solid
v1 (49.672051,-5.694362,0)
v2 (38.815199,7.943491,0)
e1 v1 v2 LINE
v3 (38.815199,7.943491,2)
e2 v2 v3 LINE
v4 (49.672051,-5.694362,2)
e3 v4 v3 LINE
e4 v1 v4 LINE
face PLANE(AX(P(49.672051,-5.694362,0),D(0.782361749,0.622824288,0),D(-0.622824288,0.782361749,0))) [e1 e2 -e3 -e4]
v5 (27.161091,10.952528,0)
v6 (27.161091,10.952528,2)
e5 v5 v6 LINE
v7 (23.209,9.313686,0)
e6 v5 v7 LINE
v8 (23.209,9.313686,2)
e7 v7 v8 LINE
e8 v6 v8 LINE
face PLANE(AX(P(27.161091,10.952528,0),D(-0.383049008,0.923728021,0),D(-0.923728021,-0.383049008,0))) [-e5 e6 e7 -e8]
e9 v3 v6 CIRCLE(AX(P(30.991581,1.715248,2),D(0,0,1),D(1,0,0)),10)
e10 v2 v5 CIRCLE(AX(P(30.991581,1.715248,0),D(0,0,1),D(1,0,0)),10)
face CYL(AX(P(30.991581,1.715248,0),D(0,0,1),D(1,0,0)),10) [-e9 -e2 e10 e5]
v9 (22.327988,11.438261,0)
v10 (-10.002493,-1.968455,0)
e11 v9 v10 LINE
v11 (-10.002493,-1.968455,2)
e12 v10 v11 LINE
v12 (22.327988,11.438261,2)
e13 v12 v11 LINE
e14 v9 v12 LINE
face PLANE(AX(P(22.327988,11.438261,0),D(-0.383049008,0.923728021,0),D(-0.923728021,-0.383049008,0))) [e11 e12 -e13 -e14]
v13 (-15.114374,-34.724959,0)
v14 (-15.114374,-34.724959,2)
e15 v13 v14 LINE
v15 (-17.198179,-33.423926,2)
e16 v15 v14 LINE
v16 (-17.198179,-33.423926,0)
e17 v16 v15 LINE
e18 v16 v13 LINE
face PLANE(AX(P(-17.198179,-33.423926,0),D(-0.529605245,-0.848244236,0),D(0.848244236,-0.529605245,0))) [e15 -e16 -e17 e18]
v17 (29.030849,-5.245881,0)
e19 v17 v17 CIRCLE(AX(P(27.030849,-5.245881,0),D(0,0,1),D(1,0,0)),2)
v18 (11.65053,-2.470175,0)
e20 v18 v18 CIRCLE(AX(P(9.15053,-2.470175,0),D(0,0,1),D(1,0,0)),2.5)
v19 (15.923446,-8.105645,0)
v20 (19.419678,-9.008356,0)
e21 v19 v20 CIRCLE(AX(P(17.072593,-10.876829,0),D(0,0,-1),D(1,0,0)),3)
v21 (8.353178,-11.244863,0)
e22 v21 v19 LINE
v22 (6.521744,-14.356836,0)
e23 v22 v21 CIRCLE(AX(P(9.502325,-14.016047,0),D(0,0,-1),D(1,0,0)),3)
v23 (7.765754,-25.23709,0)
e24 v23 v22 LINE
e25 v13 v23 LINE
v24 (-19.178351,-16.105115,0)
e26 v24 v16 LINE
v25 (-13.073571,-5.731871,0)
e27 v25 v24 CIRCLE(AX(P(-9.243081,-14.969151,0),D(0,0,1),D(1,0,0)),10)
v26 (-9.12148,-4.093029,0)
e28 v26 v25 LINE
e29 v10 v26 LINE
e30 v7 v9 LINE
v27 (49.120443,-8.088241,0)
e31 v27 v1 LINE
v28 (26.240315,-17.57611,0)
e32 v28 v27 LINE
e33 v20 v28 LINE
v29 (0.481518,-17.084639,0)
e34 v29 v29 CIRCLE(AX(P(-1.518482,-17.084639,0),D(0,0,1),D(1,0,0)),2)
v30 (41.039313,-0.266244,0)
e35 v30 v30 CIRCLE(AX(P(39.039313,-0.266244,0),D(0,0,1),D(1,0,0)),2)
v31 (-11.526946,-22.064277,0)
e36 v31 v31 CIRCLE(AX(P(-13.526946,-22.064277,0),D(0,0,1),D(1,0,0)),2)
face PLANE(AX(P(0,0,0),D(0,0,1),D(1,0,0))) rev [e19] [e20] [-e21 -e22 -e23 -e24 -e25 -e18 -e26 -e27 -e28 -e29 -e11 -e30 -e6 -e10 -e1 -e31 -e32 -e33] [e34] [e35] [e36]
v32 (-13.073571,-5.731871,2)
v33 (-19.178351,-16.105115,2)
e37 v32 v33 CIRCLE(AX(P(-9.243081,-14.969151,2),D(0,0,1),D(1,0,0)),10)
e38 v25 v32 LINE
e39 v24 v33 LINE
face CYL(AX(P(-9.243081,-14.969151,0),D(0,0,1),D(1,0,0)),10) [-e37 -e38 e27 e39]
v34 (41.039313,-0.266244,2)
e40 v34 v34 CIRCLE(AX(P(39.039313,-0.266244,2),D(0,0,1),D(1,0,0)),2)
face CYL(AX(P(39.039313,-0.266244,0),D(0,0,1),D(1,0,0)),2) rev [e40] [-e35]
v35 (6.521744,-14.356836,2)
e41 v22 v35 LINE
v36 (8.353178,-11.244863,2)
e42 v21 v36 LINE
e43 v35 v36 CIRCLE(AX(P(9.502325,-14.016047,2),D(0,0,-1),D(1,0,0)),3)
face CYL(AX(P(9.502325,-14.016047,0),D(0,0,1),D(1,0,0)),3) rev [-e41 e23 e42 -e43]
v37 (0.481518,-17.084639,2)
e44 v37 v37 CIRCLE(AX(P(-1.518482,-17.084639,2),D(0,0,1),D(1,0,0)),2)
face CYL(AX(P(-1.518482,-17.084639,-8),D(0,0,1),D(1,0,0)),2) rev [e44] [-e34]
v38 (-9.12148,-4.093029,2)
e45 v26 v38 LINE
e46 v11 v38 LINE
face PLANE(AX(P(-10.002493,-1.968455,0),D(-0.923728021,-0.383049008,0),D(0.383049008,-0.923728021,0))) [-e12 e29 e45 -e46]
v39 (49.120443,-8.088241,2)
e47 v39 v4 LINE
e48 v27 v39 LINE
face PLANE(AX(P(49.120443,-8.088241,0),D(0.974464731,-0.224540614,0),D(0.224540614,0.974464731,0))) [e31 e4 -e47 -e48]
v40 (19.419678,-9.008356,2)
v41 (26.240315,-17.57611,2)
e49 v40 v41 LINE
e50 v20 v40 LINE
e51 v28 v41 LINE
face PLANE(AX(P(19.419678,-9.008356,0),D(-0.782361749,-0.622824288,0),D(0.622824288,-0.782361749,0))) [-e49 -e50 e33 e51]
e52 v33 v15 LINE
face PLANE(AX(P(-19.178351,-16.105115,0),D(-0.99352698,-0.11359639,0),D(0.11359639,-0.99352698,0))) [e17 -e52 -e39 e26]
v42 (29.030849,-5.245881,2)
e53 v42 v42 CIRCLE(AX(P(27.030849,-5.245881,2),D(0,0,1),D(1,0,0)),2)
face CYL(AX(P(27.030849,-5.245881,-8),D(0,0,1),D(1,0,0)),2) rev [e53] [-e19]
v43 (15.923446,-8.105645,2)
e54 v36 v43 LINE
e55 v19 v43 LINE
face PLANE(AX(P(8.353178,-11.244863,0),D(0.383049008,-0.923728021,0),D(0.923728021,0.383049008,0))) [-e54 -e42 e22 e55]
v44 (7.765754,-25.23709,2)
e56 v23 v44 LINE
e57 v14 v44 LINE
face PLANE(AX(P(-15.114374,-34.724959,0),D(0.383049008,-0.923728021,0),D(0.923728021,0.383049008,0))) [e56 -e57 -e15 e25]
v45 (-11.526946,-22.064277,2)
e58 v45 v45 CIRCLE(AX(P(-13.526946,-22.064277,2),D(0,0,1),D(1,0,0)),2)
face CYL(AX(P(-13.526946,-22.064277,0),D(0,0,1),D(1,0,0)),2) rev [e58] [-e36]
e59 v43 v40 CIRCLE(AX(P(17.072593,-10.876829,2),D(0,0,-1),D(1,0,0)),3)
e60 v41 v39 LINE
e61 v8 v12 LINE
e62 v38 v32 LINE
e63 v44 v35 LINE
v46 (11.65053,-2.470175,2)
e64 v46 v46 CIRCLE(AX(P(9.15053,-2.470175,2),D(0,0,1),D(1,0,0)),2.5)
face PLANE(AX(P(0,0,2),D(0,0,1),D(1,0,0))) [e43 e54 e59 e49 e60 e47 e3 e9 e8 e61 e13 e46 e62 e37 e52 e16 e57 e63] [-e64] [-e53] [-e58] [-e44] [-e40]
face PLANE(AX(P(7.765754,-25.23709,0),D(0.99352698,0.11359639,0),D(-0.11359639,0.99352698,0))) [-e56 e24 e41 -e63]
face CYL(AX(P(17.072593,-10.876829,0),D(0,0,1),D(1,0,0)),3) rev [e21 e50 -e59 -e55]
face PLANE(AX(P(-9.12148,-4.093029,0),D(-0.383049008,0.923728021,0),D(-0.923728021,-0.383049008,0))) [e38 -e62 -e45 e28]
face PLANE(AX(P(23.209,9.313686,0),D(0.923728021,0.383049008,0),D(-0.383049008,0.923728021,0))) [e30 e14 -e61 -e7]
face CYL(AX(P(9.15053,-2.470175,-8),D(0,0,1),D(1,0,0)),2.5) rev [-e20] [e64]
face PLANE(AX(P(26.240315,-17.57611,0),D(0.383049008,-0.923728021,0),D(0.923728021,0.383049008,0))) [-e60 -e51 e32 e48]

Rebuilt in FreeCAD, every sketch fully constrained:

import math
import FreeCAD as App
import Part
import Sketcher

V = App.Vector

doc = App.newDocument("Part")
body = doc.addObject("PartDesign::Body", "Body")

# Sketch on XY plane
sketch1 = body.newObject("Sketcher::SketchObject", "Sketch")
sketch1.AttachmentSupport = (doc.getObject("XY_Plane"), [""])
sketch1.MapMode = "FlatFace"
sketch1.addGeometry(Part.LineSegment(V(-89.05194, 56.315945, 0), V(-89.05194, -56.315945, 0)), False)
sketch1.addGeometry(Part.LineSegment(V(-89.05194, -56.315945, 0), V(89.05194, -56.315945, 0)), False)
sketch1.addGeometry(Part.LineSegment(V(89.05194, -56.315945, 0), V(89.05194, 56.315945, 0)), False)
sketch1.addGeometry(Part.LineSegment(V(89.05194, 56.315945, 0), V(-89.05194, 56.315945, 0)), False)
sketch1.addConstraint(Sketcher.Constraint("Coincident", 0, 2, 1, 1))
sketch1.addConstraint(Sketcher.Constraint("Coincident", 1, 2, 2, 1))
sketch1.addConstraint(Sketcher.Constraint("Coincident", 2, 2, 3, 1))
sketch1.addConstraint(Sketcher.Constraint("Coincident", 3, 2, 0, 1))
sketch1.addConstraint(Sketcher.Constraint("Vertical", 0))
sketch1.addConstraint(Sketcher.Constraint("Horizontal", 1))
sketch1.addConstraint(Sketcher.Constraint("Vertical", 2))
sketch1.addConstraint(Sketcher.Constraint("Horizontal", 3))
sketch1.addConstraint(Sketcher.Constraint("Symmetric", 0, 2, 2, 2, -1, 1))
sketch1.addConstraint(Sketcher.Constraint("DistanceX", 1, 1, 1, 2, 178.10388))
sketch1.addConstraint(Sketcher.Constraint("DistanceY", 0, 2, 0, 1, 112.63189))
pad1 = body.newObject("PartDesign::Pad", "Pad")
pad1.Profile = sketch1
pad1.Length = 2

# Sketch on XY plane
sketch2 = body.newObject("Sketcher::SketchObject", "Sketch001")
sketch2.AttachmentSupport = (doc.getObject("XY_Plane"), [""])
sketch2.MapMode = "FlatFace"
sketch2.AttachmentOffset = App.Placement(V(0, 0, 2), App.Rotation())
sketch2.addGeometry(Part.LineSegment(V(-111.126, 78.39, 0), V(-111.126, -78.39, 0)), False)
sketch2.addGeometry(Part.LineSegment(V(-111.126, -78.39, 0), V(111.126, -78.39, 0)), False)
sketch2.addGeometry(Part.LineSegment(V(111.126, -78.39, 0), V(111.126, 78.39, 0)), False)
sketch2.addGeometry(Part.LineSegment(V(111.126, 78.39, 0), V(-111.126, 78.39, 0)), False)
sketch2.addGeometry(Part.LineSegment(V(26.240315, -17.57611, 0), V(19.419678, -9.008356, 0)), False)
sketch2.addGeometry(Part.ArcOfCircle(Part.Circle(V(17.072593, -10.876829, 0), V(0, 0, 1), 3), math.radians(38.522674), math.radians(112.522674)), False)
sketch2.addGeometry(Part.LineSegment(V(15.923446, -8.105645, 0), V(8.353178, -11.244863, 0)), False)
sketch2.addGeometry(Part.ArcOfCircle(Part.Circle(V(9.502325, -14.016047, 0), V(0, 0, 1), 3), math.radians(112.522674), math.radians(186.522674)), False)
sketch2.addGeometry(Part.LineSegment(V(6.521744, -14.356836, 0), V(7.765754, -25.23709, 0)), False)
sketch2.addGeometry(Part.LineSegment(V(7.765754, -25.23709, 0), V(-15.114374, -34.724959, 0)), False)
sketch2.addGeometry(Part.LineSegment(V(-15.114374, -34.724959, 0), V(-17.198179, -33.423926, 0)), False)
sketch2.addGeometry(Part.LineSegment(V(-17.198179, -33.423926, 0), V(-19.178351, -16.105115, 0)), False)
sketch2.addGeometry(Part.ArcOfCircle(Part.Circle(V(-9.243081, -14.969151, 0), V(0, 0, 1), 10), math.radians(112.522674), math.radians(186.522674)), False)
sketch2.addGeometry(Part.LineSegment(V(-13.073571, -5.731871, 0), V(-9.12148, -4.093029, 0)), False)
sketch2.addGeometry(Part.LineSegment(V(-9.12148, -4.093029, 0), V(-10.002493, -1.968455, 0)), False)
sketch2.addGeometry(Part.LineSegment(V(-10.002493, -1.968455, 0), V(22.327988, 11.438261, 0)), False)
sketch2.addGeometry(Part.LineSegment(V(22.327988, 11.438261, 0), V(23.209, 9.313686, 0)), False)
sketch2.addGeometry(Part.LineSegment(V(23.209, 9.313686, 0), V(27.161091, 10.952528, 0)), False)
sketch2.addGeometry(Part.ArcOfCircle(Part.Circle(V(30.991581, 1.715248, 0), V(0, 0, 1), 10), math.radians(38.522674), math.radians(112.522674)), False)
sketch2.addGeometry(Part.LineSegment(V(38.815199, 7.943491, 0), V(49.672051, -5.694362, 0)), False)
sketch2.addGeometry(Part.LineSegment(V(49.672051, -5.694362, 0), V(49.120443, -8.088241, 0)), False)
sketch2.addGeometry(Part.LineSegment(V(49.120443, -8.088241, 0), V(26.240315, -17.57611, 0)), False)
sketch2.addConstraint(Sketcher.Constraint("Coincident", 0, 2, 1, 1))
sketch2.addConstraint(Sketcher.Constraint("Coincident", 1, 2, 2, 1))
sketch2.addConstraint(Sketcher.Constraint("Coincident", 2, 2, 3, 1))
sketch2.addConstraint(Sketcher.Constraint("Coincident", 3, 2, 0, 1))
sketch2.addConstraint(Sketcher.Constraint("Coincident", 4, 2, 5, 1))
sketch2.addConstraint(Sketcher.Constraint("Coincident", 5, 2, 6, 1))
sketch2.addConstraint(Sketcher.Constraint("Coincident", 6, 2, 7, 1))
sketch2.addConstraint(Sketcher.Constraint("Coincident", 7, 2, 8, 1))
sketch2.addConstraint(Sketcher.Constraint("Coincident", 8, 2, 9, 1))
sketch2.addConstraint(Sketcher.Constraint("Coincident", 9, 2, 10, 1))
sketch2.addConstraint(Sketcher.Constraint("Coincident", 10, 2, 11, 1))
sketch2.addConstraint(Sketcher.Constraint("Coincident", 11, 2, 12, 2))
sketch2.addConstraint(Sketcher.Constraint("Coincident", 12, 1, 13, 1))
sketch2.addConstraint(Sketcher.Constraint("Coincident", 13, 2, 14, 1))
sketch2.addConstraint(Sketcher.Constraint("Coincident", 14, 2, 15, 1))
sketch2.addConstraint(Sketcher.Constraint("Coincident", 15, 2, 16, 1))
sketch2.addConstraint(Sketcher.Constraint("Coincident", 16, 2, 17, 1))
sketch2.addConstraint(Sketcher.Constraint("Coincident", 17, 2, 18, 2))
sketch2.addConstraint(Sketcher.Constraint("Coincident", 18, 1, 19, 1))
sketch2.addConstraint(Sketcher.Constraint("Coincident", 19, 2, 20, 1))
sketch2.addConstraint(Sketcher.Constraint("Coincident", 20, 2, 21, 1))
sketch2.addConstraint(Sketcher.Constraint("Coincident", 21, 2, 4, 1))
sketch2.addConstraint(Sketcher.Constraint("Vertical", 0))
sketch2.addConstraint(Sketcher.Constraint("Horizontal", 1))
sketch2.addConstraint(Sketcher.Constraint("Vertical", 2))
sketch2.addConstraint(Sketcher.Constraint("Horizontal", 3))
sketch2.addConstraint(Sketcher.Constraint("Radius", 5, 3.0))
sketch2.addConstraint(Sketcher.Constraint("Radius", 7, 3.0))
sketch2.addConstraint(Sketcher.Constraint("Radius", 12, 10.0))
sketch2.addConstraint(Sketcher.Constraint("Radius", 18, 10.0))
sketch2.addConstraint(Sketcher.Constraint("Distance", 15, 35.0))
sketch2.addConstraint(Sketcher.Constraint("Distance", 14, 2.3))
sketch2.addConstraint(Sketcher.Constraint("Distance", 16, 2.3))
sketch2.addConstraint(Sketcher.Constraint("DistanceY", 0, 2, 0, 1, 156.78))
sketch2.addConstraint(Sketcher.Constraint("DistanceX", 1, 1, 1, 2, 222.252))
sketch2.addConstraint(Sketcher.Constraint("DistanceY", 0, 2, -1, 1, 78.39))
sketch2.addConstraint(Sketcher.Constraint("DistanceX", 0, 2, -1, 1, 111.126))
sketch2.addConstraint(Sketcher.Constraint("DistanceX", -1, 1, 16, 2, 23.209))
sketch2.addConstraint(Sketcher.Constraint("DistanceX", -1, 1, 18, 1, 38.815199))
sketch2.addConstraint(Sketcher.Constraint("DistanceY", 12, 3, 18, 3, 16.6844))
sketch2.addConstraint(Sketcher.Constraint("DistanceX", 6, 2, 4, 2, 11.0665))
sketch2.addConstraint(Sketcher.Constraint("DistanceX", 7, 2, 5, 2, 9.401702))
sketch2.addConstraint(Sketcher.Constraint("DistanceX", 9, 2, 7, 3, 24.616699))
sketch2.addConstraint(Sketcher.Constraint("DistanceX", 12, 3, 13, 2, 0.121601))
sketch2.addConstraint(Sketcher.Constraint("Distance", 4, 10.951141))
sketch2.addConstraint(Sketcher.Constraint("Distance", 8, 10.951141))
sketch2.addConstraint(Sketcher.Constraint("Distance", 10, 2.456609))
sketch2.addConstraint(Sketcher.Constraint("Distance", 20, 2.456609))
sketch2.addConstraint(Sketcher.Constraint("DistanceY", 5, 3, -1, 1, 10.876829))
sketch2.addConstraint(Sketcher.Constraint("DistanceX", 12, 3, -1, 1, 9.243081))
sketch2.addConstraint(Sketcher.Constraint("DistanceY", 12, 3, -1, 1, 14.969151))
sketch2.addConstraint(Sketcher.Constraint("DistanceX", -1, 1, 18, 3, 30.991581))
sketch2.addConstraint(Sketcher.Constraint("DistanceX", -1, 1, 4, 2, 19.419678))
sketch2.addConstraint(Sketcher.Constraint("DistanceY", 8, 2, -1, 1, 25.23709))
sketch2.addConstraint(Sketcher.Constraint("DistanceY", 9, 2, -1, 1, 34.724959))
sketch2.addConstraint(Sketcher.Constraint("DistanceX", 10, 2, -1, 1, 17.198179))
sketch2.addConstraint(Sketcher.Constraint("DistanceX", 11, 2, -1, 1, 19.178351))
sketch2.addConstraint(Sketcher.Constraint("DistanceX", 12, 1, -1, 1, 13.073571))
sketch2.addConstraint(Sketcher.Constraint("DistanceY", 13, 2, -1, 1, 4.093029))
sketch2.addConstraint(Sketcher.Constraint("DistanceY", -1, 1, 15, 2, 11.438261))
sketch2.addConstraint(Sketcher.Constraint("DistanceX", -1, 1, 17, 2, 27.161091))
sketch2.addConstraint(Sketcher.Constraint("DistanceX", -1, 1, 19, 2, 49.672051))
sketch2.addConstraint(Sketcher.Constraint("DistanceY", 19, 2, -1, 1, 5.694362))
sketch2.addConstraint(Sketcher.Constraint("DistanceY", 20, 2, -1, 1, 8.088241))
sketch2.addConstraint(Sketcher.Constraint("DistanceY", 21, 2, -1, 1, 17.57611))
sketch2.addConstraint(Sketcher.Constraint("DistanceX", 5, 3, 18, 3, 13.918988))
sketch2.addConstraint(Sketcher.Constraint("DistanceY", 7, 3, 4, 2, 5.007691))
sketch2.addConstraint(Sketcher.Constraint("DistanceY", 4, 2, 5, 2, 0.902711))
sketch2.addConstraint(Sketcher.Constraint("DistanceX", 7, 3, 5, 2, 6.421121))
sketch2.addConstraint(Sketcher.Constraint("DistanceY", 11, 2, 14, 2, 14.136661))
pocket1 = body.newObject("PartDesign::Pocket", "Pocket")
pocket1.Profile = sketch2
pocket1.Length = 2

# Sketch on XY plane
sketch3 = body.newObject("Sketcher::SketchObject", "Sketch002")
sketch3.AttachmentSupport = (doc.getObject("XY_Plane"), [""])
sketch3.MapMode = "FlatFace"
sketch3.AttachmentOffset = App.Placement(V(0, 0, 2), App.Rotation())
sketch3.addGeometry(Part.Circle(V(39.039313, -0.266244, 0), V(0, 0, 1), 2), False)
sketch3.addGeometry(Part.Circle(V(-13.526946, -22.064277, 0), V(0, 0, 1), 2), False)
sketch3.addConstraint(Sketcher.Constraint("Equal", 0, 1))
sketch3.addConstraint(Sketcher.Constraint("Diameter", 0, 4.0))
sketch3.addConstraint(Sketcher.Constraint("DistanceX", 1, 3, 0, 3, 52.566259))
sketch3.addConstraint(Sketcher.Constraint("DistanceX", -1, 1, 0, 3, 39.039313))
sketch3.addConstraint(Sketcher.Constraint("DistanceY", 0, 3, -1, 1, 0.266244))
sketch3.addConstraint(Sketcher.Constraint("DistanceY", 1, 3, -1, 1, 22.064277))
pocket2 = body.newObject("PartDesign::Pocket", "Pocket001")
pocket2.Profile = sketch3
pocket2.Length = 2

# Sketch on XY plane
sketch4 = body.newObject("Sketcher::SketchObject", "Sketch003")
sketch4.AttachmentSupport = (doc.getObject("XY_Plane"), [""])
sketch4.MapMode = "FlatFace"
sketch4.AttachmentOffset = App.Placement(V(0, 0, 2), App.Rotation())
sketch4.addGeometry(Part.Circle(V(-1.518482, -17.084639, 0), V(0, 0, 1), 2), False)
sketch4.addGeometry(Part.Circle(V(27.030849, -5.245881, 0), V(0, 0, 1), 2), False)
sketch4.addConstraint(Sketcher.Constraint("Equal", 0, 1))
sketch4.addConstraint(Sketcher.Constraint("Diameter", 0, 4.0))
sketch4.addConstraint(Sketcher.Constraint("DistanceX", 0, 3, -1, 1, 1.518482))
sketch4.addConstraint(Sketcher.Constraint("DistanceY", 0, 3, -1, 1, 17.084639))
sketch4.addConstraint(Sketcher.Constraint("DistanceX", -1, 1, 1, 3, 27.030849))
sketch4.addConstraint(Sketcher.Constraint("DistanceY", 1, 3, -1, 1, 5.245881))
pocket3 = body.newObject("PartDesign::Pocket", "Pocket002")
pocket3.Profile = sketch4
pocket3.Length = 10

# Sketch on XY plane
sketch5 = body.newObject("Sketcher::SketchObject", "Sketch004")
sketch5.AttachmentSupport = (doc.getObject("XY_Plane"), [""])
sketch5.MapMode = "FlatFace"
sketch5.AttachmentOffset = App.Placement(V(0, 0, 2), App.Rotation())
sketch5.addGeometry(Part.Circle(V(9.15053, -2.470175, 0), V(0, 0, 1), 2.5), False)
sketch5.addConstraint(Sketcher.Constraint("Diameter", 0, 5.0))
sketch5.addConstraint(Sketcher.Constraint("DistanceX", -1, 1, 0, 3, 9.15053))
sketch5.addConstraint(Sketcher.Constraint("DistanceY", 0, 3, -1, 1, 2.470175))
pocket4 = body.newObject("PartDesign::Pocket", "Pocket003")
pocket4.Profile = sketch5
pocket4.Length = 10

doc.recompute()
